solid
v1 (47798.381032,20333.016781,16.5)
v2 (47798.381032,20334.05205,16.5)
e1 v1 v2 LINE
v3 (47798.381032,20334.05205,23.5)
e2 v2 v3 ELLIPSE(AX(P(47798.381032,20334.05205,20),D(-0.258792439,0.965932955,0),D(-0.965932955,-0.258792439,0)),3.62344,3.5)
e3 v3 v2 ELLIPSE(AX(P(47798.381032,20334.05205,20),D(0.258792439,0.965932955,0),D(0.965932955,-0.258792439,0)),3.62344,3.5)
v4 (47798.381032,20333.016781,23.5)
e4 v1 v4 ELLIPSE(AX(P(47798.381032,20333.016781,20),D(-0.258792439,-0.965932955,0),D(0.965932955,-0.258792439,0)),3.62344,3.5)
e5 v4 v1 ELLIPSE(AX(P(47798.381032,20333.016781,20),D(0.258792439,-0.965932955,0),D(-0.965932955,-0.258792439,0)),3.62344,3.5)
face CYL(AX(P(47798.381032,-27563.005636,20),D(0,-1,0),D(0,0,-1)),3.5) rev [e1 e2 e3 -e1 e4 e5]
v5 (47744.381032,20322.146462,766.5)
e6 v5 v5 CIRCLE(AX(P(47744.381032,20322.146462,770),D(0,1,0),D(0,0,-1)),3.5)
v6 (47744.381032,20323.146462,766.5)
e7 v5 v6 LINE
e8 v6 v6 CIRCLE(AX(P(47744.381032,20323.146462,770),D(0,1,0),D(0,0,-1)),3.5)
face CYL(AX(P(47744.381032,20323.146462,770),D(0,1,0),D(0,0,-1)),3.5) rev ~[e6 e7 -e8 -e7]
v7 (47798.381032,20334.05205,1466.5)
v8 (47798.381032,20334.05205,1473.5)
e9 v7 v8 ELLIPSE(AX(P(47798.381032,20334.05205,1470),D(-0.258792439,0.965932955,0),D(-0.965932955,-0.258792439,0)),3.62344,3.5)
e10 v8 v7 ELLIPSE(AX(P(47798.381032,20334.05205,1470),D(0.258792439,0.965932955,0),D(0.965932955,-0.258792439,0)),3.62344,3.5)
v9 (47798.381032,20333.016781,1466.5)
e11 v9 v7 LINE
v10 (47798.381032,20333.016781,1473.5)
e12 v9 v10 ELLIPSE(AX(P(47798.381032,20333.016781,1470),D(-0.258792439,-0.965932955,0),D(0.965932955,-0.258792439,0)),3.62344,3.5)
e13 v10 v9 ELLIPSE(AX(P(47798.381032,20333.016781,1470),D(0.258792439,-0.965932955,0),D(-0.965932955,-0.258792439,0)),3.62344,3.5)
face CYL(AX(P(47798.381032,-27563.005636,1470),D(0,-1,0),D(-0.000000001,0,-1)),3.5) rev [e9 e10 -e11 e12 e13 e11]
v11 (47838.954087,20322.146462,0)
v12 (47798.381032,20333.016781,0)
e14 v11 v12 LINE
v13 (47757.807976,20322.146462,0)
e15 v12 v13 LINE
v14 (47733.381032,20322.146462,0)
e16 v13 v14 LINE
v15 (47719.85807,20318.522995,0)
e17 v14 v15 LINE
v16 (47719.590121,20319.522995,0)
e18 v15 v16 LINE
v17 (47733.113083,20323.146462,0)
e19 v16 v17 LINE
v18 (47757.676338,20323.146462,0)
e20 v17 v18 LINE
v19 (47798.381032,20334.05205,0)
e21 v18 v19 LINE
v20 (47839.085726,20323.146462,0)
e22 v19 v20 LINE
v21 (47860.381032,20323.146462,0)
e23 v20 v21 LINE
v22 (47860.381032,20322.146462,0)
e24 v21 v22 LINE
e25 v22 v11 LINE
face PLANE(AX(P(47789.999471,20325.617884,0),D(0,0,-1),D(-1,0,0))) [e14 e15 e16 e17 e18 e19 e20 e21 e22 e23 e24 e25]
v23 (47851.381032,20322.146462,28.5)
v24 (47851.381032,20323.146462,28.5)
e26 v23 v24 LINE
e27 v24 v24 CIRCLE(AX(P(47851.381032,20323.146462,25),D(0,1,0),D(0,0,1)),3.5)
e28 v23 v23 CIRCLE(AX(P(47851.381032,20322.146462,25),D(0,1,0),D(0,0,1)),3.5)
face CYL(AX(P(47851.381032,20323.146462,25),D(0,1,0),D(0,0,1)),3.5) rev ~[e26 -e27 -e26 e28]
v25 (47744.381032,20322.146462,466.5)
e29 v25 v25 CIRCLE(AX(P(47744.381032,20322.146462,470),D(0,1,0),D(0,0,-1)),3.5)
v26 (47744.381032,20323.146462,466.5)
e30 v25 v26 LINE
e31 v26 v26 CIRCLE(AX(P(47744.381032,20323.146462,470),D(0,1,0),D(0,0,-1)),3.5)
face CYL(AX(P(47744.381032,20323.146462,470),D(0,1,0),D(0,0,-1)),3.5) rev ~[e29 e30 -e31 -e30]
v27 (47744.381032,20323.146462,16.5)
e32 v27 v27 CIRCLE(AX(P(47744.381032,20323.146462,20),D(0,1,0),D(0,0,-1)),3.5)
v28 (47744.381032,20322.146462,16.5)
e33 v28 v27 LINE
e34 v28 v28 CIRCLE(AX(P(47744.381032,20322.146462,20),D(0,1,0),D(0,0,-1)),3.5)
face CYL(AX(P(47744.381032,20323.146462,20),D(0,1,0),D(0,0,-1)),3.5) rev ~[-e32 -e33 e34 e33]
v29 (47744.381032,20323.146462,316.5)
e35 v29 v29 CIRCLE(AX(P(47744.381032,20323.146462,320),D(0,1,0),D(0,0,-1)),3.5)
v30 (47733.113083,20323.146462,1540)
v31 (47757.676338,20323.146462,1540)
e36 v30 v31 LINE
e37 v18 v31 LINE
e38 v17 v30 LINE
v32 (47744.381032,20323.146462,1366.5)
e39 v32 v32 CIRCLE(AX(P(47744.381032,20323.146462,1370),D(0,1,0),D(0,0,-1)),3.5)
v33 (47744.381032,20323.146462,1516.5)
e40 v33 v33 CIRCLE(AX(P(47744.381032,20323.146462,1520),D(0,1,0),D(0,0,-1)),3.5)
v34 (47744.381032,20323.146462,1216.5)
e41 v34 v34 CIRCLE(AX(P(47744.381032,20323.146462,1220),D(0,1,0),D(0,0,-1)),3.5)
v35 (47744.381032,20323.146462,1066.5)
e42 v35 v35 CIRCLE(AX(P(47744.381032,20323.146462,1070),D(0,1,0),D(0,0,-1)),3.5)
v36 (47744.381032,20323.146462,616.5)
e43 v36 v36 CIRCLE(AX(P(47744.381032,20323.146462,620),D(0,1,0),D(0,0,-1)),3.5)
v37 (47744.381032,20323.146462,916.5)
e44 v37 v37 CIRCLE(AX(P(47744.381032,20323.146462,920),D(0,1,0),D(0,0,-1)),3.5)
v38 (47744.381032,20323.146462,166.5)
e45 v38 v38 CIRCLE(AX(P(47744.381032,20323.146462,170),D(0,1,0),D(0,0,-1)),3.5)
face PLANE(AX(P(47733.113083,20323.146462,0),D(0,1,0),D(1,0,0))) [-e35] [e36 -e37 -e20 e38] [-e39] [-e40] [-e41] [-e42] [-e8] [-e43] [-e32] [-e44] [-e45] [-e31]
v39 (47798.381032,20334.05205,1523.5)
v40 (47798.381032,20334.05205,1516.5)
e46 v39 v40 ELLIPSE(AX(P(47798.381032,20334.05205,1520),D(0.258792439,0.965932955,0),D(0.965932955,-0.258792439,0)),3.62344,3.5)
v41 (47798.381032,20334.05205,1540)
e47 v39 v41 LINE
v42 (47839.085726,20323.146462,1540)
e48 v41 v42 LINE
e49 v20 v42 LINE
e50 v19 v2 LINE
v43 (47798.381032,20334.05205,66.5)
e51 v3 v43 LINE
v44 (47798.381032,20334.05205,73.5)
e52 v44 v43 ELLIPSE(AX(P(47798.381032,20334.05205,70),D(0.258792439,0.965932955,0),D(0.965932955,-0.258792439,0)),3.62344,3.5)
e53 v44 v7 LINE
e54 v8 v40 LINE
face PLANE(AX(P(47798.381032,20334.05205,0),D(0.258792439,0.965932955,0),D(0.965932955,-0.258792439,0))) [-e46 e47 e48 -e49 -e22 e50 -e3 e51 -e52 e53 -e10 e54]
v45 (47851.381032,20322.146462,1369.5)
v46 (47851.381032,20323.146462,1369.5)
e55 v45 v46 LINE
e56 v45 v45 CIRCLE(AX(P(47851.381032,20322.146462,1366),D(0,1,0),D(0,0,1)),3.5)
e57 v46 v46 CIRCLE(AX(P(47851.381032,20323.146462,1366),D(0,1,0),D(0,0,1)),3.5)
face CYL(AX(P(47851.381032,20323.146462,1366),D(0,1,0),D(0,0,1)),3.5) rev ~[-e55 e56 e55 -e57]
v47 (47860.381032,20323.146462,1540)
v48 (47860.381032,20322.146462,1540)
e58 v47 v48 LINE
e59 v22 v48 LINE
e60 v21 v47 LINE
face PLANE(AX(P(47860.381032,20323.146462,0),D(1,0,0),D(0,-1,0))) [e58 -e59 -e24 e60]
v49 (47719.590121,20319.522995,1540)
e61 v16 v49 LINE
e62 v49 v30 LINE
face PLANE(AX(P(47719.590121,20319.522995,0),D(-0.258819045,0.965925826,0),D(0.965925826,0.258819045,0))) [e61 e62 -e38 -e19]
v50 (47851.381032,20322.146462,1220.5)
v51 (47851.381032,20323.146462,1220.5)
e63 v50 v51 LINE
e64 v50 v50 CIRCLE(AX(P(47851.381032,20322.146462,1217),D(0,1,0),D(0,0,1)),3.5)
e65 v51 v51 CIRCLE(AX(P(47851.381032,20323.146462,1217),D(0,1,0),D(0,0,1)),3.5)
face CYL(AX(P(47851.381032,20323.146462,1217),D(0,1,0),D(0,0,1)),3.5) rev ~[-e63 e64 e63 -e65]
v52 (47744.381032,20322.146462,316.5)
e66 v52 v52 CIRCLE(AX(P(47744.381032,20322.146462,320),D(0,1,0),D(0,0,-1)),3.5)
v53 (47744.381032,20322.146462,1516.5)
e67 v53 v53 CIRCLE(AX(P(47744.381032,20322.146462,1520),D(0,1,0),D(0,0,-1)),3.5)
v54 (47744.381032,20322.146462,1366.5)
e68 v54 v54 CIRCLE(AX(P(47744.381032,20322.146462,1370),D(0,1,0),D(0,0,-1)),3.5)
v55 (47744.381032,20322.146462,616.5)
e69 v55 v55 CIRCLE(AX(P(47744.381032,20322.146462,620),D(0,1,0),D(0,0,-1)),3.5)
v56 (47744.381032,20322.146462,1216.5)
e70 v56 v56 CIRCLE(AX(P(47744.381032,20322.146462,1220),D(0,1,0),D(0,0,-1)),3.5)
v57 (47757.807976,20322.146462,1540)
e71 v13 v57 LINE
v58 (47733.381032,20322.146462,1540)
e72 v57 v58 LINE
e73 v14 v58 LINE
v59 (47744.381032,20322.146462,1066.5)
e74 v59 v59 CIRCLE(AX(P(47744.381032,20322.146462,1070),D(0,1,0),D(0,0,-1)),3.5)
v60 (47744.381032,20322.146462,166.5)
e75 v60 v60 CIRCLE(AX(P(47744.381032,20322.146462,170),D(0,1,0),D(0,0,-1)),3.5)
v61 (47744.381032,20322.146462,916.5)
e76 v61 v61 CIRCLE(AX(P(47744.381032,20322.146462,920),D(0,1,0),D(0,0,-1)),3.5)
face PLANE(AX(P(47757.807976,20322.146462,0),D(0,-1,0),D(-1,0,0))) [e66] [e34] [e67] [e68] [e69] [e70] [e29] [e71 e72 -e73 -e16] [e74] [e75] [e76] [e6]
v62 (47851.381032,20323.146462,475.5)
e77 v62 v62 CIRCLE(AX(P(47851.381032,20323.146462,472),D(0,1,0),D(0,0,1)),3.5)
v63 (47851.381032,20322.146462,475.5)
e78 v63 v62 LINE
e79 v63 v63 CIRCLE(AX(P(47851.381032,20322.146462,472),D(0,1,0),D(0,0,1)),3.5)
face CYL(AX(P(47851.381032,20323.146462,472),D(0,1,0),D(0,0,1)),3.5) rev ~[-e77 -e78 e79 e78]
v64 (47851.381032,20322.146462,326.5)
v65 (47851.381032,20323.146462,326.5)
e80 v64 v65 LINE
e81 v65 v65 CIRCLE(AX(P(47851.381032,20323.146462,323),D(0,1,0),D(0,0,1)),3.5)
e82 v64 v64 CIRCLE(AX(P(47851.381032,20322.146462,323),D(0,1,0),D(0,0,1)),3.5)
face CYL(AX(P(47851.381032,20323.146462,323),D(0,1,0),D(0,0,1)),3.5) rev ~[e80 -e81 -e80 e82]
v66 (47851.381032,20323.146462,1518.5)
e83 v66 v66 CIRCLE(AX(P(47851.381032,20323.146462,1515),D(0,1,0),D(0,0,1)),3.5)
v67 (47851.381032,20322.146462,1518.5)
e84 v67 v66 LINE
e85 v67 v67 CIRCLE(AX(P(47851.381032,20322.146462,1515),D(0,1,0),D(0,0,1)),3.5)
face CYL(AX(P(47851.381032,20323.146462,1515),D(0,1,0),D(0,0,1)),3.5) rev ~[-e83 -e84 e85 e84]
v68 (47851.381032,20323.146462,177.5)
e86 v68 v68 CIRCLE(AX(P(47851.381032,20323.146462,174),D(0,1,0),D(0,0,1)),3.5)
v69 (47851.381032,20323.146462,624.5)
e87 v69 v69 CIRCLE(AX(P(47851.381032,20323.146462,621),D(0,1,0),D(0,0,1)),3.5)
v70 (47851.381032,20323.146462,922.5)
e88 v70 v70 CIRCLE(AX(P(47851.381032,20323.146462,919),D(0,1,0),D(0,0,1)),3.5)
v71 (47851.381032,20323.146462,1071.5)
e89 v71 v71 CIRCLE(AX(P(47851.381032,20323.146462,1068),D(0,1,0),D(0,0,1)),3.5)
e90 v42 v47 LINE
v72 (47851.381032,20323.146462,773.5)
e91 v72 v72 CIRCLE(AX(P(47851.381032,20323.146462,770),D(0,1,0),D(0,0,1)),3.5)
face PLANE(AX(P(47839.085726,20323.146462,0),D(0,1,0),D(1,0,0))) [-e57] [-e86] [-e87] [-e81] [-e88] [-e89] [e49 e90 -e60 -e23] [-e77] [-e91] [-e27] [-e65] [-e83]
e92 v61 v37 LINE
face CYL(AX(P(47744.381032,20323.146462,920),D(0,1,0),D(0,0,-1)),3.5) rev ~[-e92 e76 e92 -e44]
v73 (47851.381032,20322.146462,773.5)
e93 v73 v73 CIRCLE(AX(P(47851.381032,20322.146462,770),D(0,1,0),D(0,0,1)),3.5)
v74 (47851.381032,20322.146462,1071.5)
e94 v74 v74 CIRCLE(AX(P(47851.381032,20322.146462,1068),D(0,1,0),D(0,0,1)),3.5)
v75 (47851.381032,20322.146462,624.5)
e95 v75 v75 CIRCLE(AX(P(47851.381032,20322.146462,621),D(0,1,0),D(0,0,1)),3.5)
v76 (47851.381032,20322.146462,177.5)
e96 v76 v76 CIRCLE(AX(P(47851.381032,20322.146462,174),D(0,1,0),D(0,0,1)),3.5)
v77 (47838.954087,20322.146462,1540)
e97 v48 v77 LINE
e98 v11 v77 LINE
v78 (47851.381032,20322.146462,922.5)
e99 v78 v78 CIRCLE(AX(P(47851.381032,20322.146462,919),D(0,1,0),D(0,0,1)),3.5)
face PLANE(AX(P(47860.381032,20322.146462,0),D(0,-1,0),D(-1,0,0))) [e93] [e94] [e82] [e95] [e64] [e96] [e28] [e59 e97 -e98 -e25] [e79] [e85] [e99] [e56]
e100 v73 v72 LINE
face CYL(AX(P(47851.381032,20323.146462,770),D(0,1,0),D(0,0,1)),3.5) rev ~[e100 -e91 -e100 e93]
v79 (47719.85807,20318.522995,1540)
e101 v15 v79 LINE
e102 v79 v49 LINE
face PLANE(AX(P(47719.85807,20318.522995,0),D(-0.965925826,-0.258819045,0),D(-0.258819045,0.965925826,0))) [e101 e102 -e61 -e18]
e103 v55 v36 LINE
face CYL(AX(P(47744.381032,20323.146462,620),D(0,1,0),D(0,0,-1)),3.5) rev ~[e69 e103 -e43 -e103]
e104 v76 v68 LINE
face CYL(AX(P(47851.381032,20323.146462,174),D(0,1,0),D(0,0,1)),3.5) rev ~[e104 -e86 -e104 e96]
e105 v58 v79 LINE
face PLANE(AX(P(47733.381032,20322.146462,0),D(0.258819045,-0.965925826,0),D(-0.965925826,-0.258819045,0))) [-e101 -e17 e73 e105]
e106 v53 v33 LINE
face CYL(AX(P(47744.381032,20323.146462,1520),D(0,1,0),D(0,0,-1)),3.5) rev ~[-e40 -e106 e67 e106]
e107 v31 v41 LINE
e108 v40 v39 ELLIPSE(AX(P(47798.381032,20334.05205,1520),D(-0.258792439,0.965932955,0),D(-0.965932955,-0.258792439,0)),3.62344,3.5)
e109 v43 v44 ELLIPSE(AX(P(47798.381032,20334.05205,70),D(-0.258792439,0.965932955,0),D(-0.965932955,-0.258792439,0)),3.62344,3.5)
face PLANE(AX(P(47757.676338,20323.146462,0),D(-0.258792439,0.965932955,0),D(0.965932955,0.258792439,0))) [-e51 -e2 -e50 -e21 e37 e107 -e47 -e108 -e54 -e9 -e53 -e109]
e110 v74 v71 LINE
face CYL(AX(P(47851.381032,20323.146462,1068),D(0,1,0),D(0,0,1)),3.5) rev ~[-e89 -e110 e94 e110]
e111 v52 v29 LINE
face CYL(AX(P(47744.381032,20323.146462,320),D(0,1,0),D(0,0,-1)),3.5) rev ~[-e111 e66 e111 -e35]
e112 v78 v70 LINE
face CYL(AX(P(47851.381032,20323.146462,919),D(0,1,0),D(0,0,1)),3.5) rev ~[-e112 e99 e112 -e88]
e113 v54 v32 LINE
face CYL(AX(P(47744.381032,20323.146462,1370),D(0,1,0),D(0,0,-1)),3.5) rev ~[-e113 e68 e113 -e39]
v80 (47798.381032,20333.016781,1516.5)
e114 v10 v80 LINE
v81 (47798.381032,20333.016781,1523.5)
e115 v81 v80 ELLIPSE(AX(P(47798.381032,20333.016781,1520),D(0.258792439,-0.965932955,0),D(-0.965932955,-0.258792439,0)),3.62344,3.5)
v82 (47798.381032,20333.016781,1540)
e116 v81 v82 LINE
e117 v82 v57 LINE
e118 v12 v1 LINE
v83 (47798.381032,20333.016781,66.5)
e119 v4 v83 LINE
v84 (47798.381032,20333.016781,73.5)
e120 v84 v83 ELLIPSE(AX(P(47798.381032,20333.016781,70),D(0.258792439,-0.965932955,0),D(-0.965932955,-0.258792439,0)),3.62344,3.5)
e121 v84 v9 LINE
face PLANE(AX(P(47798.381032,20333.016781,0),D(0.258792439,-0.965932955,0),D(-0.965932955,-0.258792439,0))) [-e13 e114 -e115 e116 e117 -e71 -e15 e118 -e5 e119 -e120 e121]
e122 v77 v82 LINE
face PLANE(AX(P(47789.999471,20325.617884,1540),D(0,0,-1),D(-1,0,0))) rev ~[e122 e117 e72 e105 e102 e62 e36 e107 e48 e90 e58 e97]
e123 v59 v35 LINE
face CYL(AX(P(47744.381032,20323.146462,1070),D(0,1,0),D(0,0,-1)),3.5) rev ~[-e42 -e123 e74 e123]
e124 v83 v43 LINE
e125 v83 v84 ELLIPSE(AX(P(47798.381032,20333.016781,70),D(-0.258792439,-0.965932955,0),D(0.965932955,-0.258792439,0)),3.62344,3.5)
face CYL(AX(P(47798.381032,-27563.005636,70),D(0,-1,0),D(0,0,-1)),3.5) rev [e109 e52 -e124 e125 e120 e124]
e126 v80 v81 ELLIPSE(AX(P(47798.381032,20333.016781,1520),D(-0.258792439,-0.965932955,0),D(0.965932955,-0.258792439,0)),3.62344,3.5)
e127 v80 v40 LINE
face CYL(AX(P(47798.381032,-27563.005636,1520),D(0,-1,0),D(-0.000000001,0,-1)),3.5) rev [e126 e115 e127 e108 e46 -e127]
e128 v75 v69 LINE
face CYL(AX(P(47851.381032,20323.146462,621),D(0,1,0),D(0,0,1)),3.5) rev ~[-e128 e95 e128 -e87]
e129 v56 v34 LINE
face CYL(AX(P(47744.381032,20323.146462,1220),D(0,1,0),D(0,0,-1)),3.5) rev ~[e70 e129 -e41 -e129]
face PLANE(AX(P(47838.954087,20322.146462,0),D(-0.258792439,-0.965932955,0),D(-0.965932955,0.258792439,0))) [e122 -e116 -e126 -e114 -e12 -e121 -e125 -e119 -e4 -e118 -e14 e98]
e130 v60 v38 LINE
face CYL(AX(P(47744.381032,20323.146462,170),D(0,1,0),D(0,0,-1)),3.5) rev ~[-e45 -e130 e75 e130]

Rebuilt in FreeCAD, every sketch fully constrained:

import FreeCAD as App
import Part
import Sketcher

V = App.Vector
Q = App.Units.Quantity

doc = App.newDocument("Part")
params = doc.addObject("Spreadsheet::Sheet", "Params")
for row, (alias, value) in enumerate([
    ("sketch1_height", "1 mm"),
    ("sketch1_length", "14 mm"),
    ("pad1_length", "1540 mm"),
    ("sketch2_diameter", "7 mm"),
    ("sketch3_diameter", "7 mm"),
    ("pocket2_length", "95772.304196 mm"),
    ("linearpattern_pitch", "149 mm"),
    ("sketch4_diameter", "7 mm"),
    ("pocket3_length", "95772.304196 mm"),
    ("linearpattern2_pitch", "150 mm"),
], start=1):
    params.set(f"A{row}", alias)
    params.set(f"B{row}", "=" + value)
    params.setAlias(f"B{row}", alias)

body = doc.addObject("PartDesign::Body", "Body")

sketch1 = doc.addObject("Sketcher::SketchObject", "Sketch")
body.addObject(sketch1)
sketch1.AttachmentSupport = (doc.XY_Plane, [""])
sketch1.MapMode = "FlatFace"
sketch1.addGeometry(Part.LineSegment(V(47839, 20322.1, 0), V(47860.4, 20322.1, 0)), False)
sketch1.addGeometry(Part.LineSegment(V(47860.4, 20322.1, 0), V(47860.4, 20323.1, 0)), False)
sketch1.addGeometry(Part.LineSegment(V(47860.4, 20323.1, 0), V(47839.1, 20323.1, 0)), False)
sketch1.addGeometry(Part.LineSegment(V(47839.1, 20323.1, 0), V(47798.4, 20334.1, 0)), False)
sketch1.addGeometry(Part.LineSegment(V(47798.4, 20334.1, 0), V(47757.7, 20323.1, 0)), False)
sketch1.addGeometry(Part.LineSegment(V(47757.7, 20323.1, 0), V(47733.1, 20323.1, 0)), False)
sketch1.addGeometry(Part.LineSegment(V(47733.1, 20323.1, 0), V(47719.6, 20319.5, 0)), False)
sketch1.addGeometry(Part.LineSegment(V(47719.6, 20319.5, 0), V(47719.9, 20318.5, 0)), False)
sketch1.addGeometry(Part.LineSegment(V(47719.9, 20318.5, 0), V(47733.4, 20322.1, 0)), False)
sketch1.addGeometry(Part.LineSegment(V(47733.4, 20322.1, 0), V(47757.8, 20322.1, 0)), False)
sketch1.addGeometry(Part.LineSegment(V(47757.8, 20322.1, 0), V(47798.4, 20333, 0)), False)
sketch1.addGeometry(Part.LineSegment(V(47798.4, 20333, 0), V(47839, 20322.1, 0)), False)
sketch1.addConstraint(Sketcher.Constraint("Coincident", 0, 2, 1, 1))
sketch1.addConstraint(Sketcher.Constraint("Coincident", 1, 2, 2, 1))
sketch1.addConstraint(Sketcher.Constraint("Coincident", 2, 2, 3, 1))
sketch1.addConstraint(Sketcher.Constraint("Coincident", 3, 2, 4, 1))
sketch1.addConstraint(Sketcher.Constraint("Coincident", 4, 2, 5, 1))
sketch1.addConstraint(Sketcher.Constraint("Coincident", 5, 2, 6, 1))
sketch1.addConstraint(Sketcher.Constraint("Coincident", 6, 2, 7, 1))
sketch1.addConstraint(Sketcher.Constraint("Coincident", 7, 2, 8, 1))
sketch1.addConstraint(Sketcher.Constraint("Coincident", 8, 2, 9, 1))
sketch1.addConstraint(Sketcher.Constraint("Coincident", 9, 2, 10, 1))
sketch1.addConstraint(Sketcher.Constraint("Coincident", 10, 2, 11, 1))
sketch1.addConstraint(Sketcher.Constraint("Coincident", 11, 2, 0, 1))
sketch1.addConstraint(Sketcher.Constraint("Horizontal", 0))
sketch1.addConstraint(Sketcher.Constraint("Vertical", 1))
sketch1.addConstraint(Sketcher.Constraint("Horizontal", 2))
sketch1.addConstraint(Sketcher.Constraint("Horizontal", 5))
sketch1.addConstraint(Sketcher.Constraint("Horizontal", 9))
sketch1.addConstraint(Sketcher.Constraint("Perpendicular", 6, 7))
sketch1.addConstraint(Sketcher.Constraint("Perpendicular", 7, 8))
sketch1.addConstraint(Sketcher.Constraint("Parallel", 4, 10))
sketch1.addConstraint(Sketcher.Constraint("Parallel", 3, 11))
sketch1.addConstraint(Sketcher.Constraint("Horizontal", 2, 2, 4, 2))
sketch1.addConstraint(Sketcher.Constraint("Horizontal", 0, 2, 8, 2))
sketch1.addConstraint(Sketcher.Constraint("Vertical", 3, 2, 10, 2))
sketch1.addConstraint(Sketcher.Constraint("Equal", 3, 4))
sketch1.addConstraint(Sketcher.Constraint("Equal", 6, 8))
sketch1.addConstraint(Sketcher.Constraint("DistanceY", 1, 1, 1, 2, 1.0))
sketch1.addConstraint(Sketcher.Constraint("Angle", 6, Q("-165 deg")))
sketch1.addConstraint(Sketcher.Constraint("Distance", 6, 14.0))
sketch1.addConstraint(Sketcher.Constraint("DistanceX", 3, 2, 1, 2, 62.0))
sketch1.addConstraint(Sketcher.Constraint("DistanceX", 8, 2, 3, 2, 65.0))
sketch1.addConstraint(Sketcher.Constraint("Distance", 3, 42.140289))
sketch1.addConstraint(Sketcher.Constraint("DistanceX", 0, 1, 0, 2, 21.426945))
sketch1.addConstraint(Sketcher.Constraint("DistanceX", 2, 2, 2, 1, 21.295306))
sketch1.addConstraint(Sketcher.Constraint("DistanceX", -1, 1, 0, 2, 47860.381032))
sketch1.addConstraint(Sketcher.Constraint("DistanceY", -1, 1, 0, 2, 20322.146462))
sketch1.setExpression("Constraints[26]", "Params.sketch1_height")
sketch1.setExpression("Constraints[28]", "Params.sketch1_length")
pad1 = doc.addObject("PartDesign::Pad", "Pad")
body.addObject(pad1)
pad1.Profile = sketch1
pad1.setExpression("Length", "Params.pad1_length")

sketch2 = doc.addObject("Sketcher::SketchObject", "Sketch001")
body.addObject(sketch2)
sketch2.AttachmentSupport = (doc.XZ_Plane, [""])
sketch2.MapMode = "FlatFace"
sketch2.AttachmentOffset = App.Placement(V(0, 0, -20323.146462), App.Rotation())
sketch2.addGeometry(Part.Circle(V(47798.381032, 20, 0), V(0, 0, 1), 3.5), False)
sketch2.addGeometry(Part.Circle(V(47798.381032, 70, 0), V(0, 0, 1), 3.5), False)
sketch2.addGeometry(Part.Circle(V(47798.381032, 1470, 0), V(0, 0, 1), 3.5), False)
sketch2.addGeometry(Part.Circle(V(47798.381032, 1520, 0), V(0, 0, 1), 3.5), False)
sketch2.addConstraint(Sketcher.Constraint("Equal", 0, 1))
sketch2.addConstraint(Sketcher.Constraint("Equal", 1, 2))
sketch2.addConstraint(Sketcher.Constraint("Equal", 2, 3))
sketch2.addConstraint(Sketcher.Constraint("Vertical", 0, 3, 1, 3))
sketch2.addConstraint(Sketcher.Constraint("Vertical", 1, 3, 2, 3))
sketch2.addConstraint(Sketcher.Constraint("Vertical", 2, 3, 3, 3))
sketch2.addConstraint(Sketcher.Constraint("Diameter", 0, 7.0))
sketch2.addConstraint(Sketcher.Constraint("DistanceY", -1, 1, 0, 3, 20.0))
sketch2.addConstraint(Sketcher.Constraint("DistanceY", -1, 1, 1, 3, 70.0))
sketch2.addConstraint(Sketcher.Constraint("DistanceY", -1, 1, 2, 3, 1470.0))
sketch2.addConstraint(Sketcher.Constraint("DistanceY", -1, 1, 3, 3, 1520.0))
sketch2.addConstraint(Sketcher.Constraint("DistanceX", -1, 1, 0, 3, 47798.381032))
sketch2.setExpression("Constraints[6]", "Params.sketch2_diameter")
pocket1 = doc.addObject("PartDesign::Pocket", "Pocket")
body.addObject(pocket1)
pocket1.Profile = sketch2
pocket1.Type = "ThroughAll"
pocket1.Midplane = True

sketch3 = doc.addObject("Sketcher::SketchObject", "Sketch002")
body.addObject(sketch3)
sketch3.AttachmentSupport = (doc.XZ_Plane, [""])
sketch3.MapMode = "FlatFace"
sketch3.AttachmentOffset = App.Placement(V(0, 0, -20323.146462), App.Rotation())
sketch3.addGeometry(Part.Circle(V(47851.381032, 25, 0), V(0, 0, 1), 3.5), False)
sketch3.addConstraint(Sketcher.Constraint("Diameter", 0, 7.0))
sketch3.addConstraint(Sketcher.Constraint("DistanceY", -1, 1, 0, 3, 25.0))
sketch3.addConstraint(Sketcher.Constraint("DistanceX", -1, 1, 0, 3, 47851.381032))
sketch3.setExpression("Constraints[0]", "Params.sketch3_diameter")
pocket2 = doc.addObject("PartDesign::Pocket", "Pocket001")
body.addObject(pocket2)
pocket2.Profile = sketch3
pocket2.setExpression("Length", "Params.pocket2_length")
pocket2.Midplane = True
doc.recompute()

linearpattern = doc.addObject("PartDesign::LinearPattern", "LinearPattern")
body.addObject(linearpattern)
linearpattern.Originals = [pocket2]
linearpattern.Direction = (doc.Z_Axis, [""])
linearpattern.Mode = "offset"
linearpattern.setExpression("Offset", "Params.linearpattern_pitch")
linearpattern.Occurrences = 11
body.Tip = linearpattern

sketch4 = doc.addObject("Sketcher::SketchObject", "Sketch003")
body.addObject(sketch4)
sketch4.AttachmentSupport = (doc.XZ_Plane, [""])
sketch4.MapMode = "FlatFace"
sketch4.AttachmentOffset = App.Placement(V(0, 0, -20323.146462), App.Rotation())
sketch4.addGeometry(Part.Circle(V(47744.381032, 1520, 0), V(0, 0, 1), 3.5), False)
sketch4.addConstraint(Sketcher.Constraint("Diameter", 0, 7.0))
sketch4.addConstraint(Sketcher.Constraint("DistanceY", -1, 1, 0, 3, 1520.0))
sketch4.addConstraint(Sketcher.Constraint("DistanceX", -1, 1, 0, 3, 47744.381032))
sketch4.setExpression("Constraints[0]", "Params.sketch4_diameter")
pocket3 = doc.addObject("PartDesign::Pocket", "Pocket002")
body.addObject(pocket3)
pocket3.Profile = sketch4
pocket3.setExpression("Length", "Params.pocket3_length")
pocket3.Midplane = True
doc.recompute()

linearpattern2 = doc.addObject("PartDesign::LinearPattern", "LinearPattern001")
body.addObject(linearpattern2)
linearpattern2.Originals = [pocket3]
linearpattern2.Direction = (doc.Z_Axis, [""])
linearpattern2.Mode = "offset"
linearpattern2.setExpression("Offset", "Params.linearpattern2_pitch")
linearpattern2.Occurrences = 11
linearpattern2.Reversed = True
body.Tip = linearpattern2

doc.recompute()
